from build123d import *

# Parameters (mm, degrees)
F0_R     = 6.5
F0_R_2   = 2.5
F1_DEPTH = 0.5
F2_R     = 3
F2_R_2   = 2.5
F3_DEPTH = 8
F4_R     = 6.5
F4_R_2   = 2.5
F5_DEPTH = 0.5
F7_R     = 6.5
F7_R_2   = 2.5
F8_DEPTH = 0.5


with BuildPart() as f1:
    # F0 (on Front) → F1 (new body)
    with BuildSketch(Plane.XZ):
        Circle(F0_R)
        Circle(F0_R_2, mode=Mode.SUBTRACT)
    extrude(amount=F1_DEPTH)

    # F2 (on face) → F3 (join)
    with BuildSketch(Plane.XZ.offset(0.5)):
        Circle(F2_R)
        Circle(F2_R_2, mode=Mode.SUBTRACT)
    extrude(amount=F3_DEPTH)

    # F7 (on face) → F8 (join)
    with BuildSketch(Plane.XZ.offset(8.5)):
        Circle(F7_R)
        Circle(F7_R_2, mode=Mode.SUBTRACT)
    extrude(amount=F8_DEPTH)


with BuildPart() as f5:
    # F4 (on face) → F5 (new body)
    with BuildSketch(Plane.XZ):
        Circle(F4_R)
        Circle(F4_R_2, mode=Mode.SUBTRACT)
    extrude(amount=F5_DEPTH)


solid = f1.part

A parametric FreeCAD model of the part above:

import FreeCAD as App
import Part
import Sketcher
from FreeCAD import Vector

doc = App.newDocument("Part")
body = doc.addObject("PartDesign::Body", "Body")

# Sketch on XZ plane
sketch1 = doc.addObject("Sketcher::SketchObject", "Sketch")
body.addObject(sketch1)
sketch1.AttachmentSupport = (doc.XZ_Plane, [""])
sketch1.MapMode = "FlatFace"
sketch1.addGeometry([
    Part.Circle(Vector(0, 0, 0), Vector(0, 0, 1), 6.5),
    Part.Circle(Vector(0, 0, 0), Vector(0, 0, 1), 2.5),
], False)
sketch1.addConstraint([
    Sketcher.Constraint("Coincident", 0, 3, -1, 1),
    Sketcher.Constraint("Coincident", 1, 3, -1, 1),
    Sketcher.Constraint("Diameter", 0, 13.0),
    Sketcher.Constraint("Diameter", 1, 5.0),
])
pad1 = doc.addObject("PartDesign::Pad", "Pad")
body.addObject(pad1)
pad1.Profile = sketch1
pad1.Length = 0.5

# Sketch on XZ plane
sketch2 = doc.addObject("Sketcher::SketchObject", "Sketch001")
body.addObject(sketch2)
sketch2.AttachmentSupport = (doc.XZ_Plane, [""])
sketch2.MapMode = "FlatFace"
sketch2.AttachmentOffset = App.Placement(Vector(0, 0, 0.5), App.Rotation())
sketch2.addGeometry([
    Part.Circle(Vector(0, 0, 0), Vector(0, 0, 1), 3),
    Part.Circle(Vector(0, 0, 0), Vector(0, 0, 1), 2.5),
], False)
sketch2.addConstraint([
    Sketcher.Constraint("Coincident", 0, 3, -1, 1),
    Sketcher.Constraint("Coincident", 1, 3, -1, 1),
    Sketcher.Constraint("Diameter", 0, 6.0),
    Sketcher.Constraint("Diameter", 1, 5.0),
])
pad2 = doc.addObject("PartDesign::Pad", "Pad001")
body.addObject(pad2)
pad2.Profile = sketch2
pad2.Length = 8

# Sketch on XZ plane
sketch3 = doc.addObject("Sketcher::SketchObject", "Sketch002")
body.addObject(sketch3)
sketch3.AttachmentSupport = (doc.XZ_Plane, [""])
sketch3.MapMode = "FlatFace"
sketch3.AttachmentOffset = App.Placement(Vector(0, 0, 8.5), App.Rotation())
sketch3.addGeometry([
    Part.Circle(Vector(0, 0, 0), Vector(0, 0, 1), 6.5),
    Part.Circle(Vector(0, 0, 0), Vector(0, 0, 1), 2.5),
], False)
sketch3.addConstraint([
    Sketcher.Constraint("Coincident", 0, 3, -1, 1),
    Sketcher.Constraint("Coincident", 1, 3, -1, 1),
    Sketcher.Constraint("Diameter", 0, 13.0),
    Sketcher.Constraint("Diameter", 1, 5.0),
])
pad3 = doc.addObject("PartDesign::Pad", "Pad002")
body.addObject(pad3)
pad3.Profile = sketch3
pad3.Length = 0.5
body2 = doc.addObject("PartDesign::Body", "Body001")

# Sketch on XZ plane
sketch4 = doc.addObject("Sketcher::SketchObject", "Sketch003")
body2.addObject(sketch4)
sketch4.AttachmentSupport = (doc.getObject("XZ_Plane001"), [""])
sketch4.MapMode = "FlatFace"
sketch4.addGeometry([
    Part.Circle(Vector(0, 0, 0), Vector(0, 0, 1), 6.5),
    Part.Circle(Vector(0, 0, 0), Vector(0, 0, 1), 2.5),
], False)
sketch4.addConstraint([
    Sketcher.Constraint("Coincident", 0, 3, -1, 1),
    Sketcher.Constraint("Coincident", 1, 3, -1, 1),
    Sketcher.Constraint("Diameter", 0, 13.0),
    Sketcher.Constraint("Diameter", 1, 5.0),
])
pad4 = doc.addObject("PartDesign::Pad", "Pad003")
body2.addObject(pad4)
pad4.Profile = sketch4
pad4.Length = 0.5
body2.Visibility = False

doc.recompute()
